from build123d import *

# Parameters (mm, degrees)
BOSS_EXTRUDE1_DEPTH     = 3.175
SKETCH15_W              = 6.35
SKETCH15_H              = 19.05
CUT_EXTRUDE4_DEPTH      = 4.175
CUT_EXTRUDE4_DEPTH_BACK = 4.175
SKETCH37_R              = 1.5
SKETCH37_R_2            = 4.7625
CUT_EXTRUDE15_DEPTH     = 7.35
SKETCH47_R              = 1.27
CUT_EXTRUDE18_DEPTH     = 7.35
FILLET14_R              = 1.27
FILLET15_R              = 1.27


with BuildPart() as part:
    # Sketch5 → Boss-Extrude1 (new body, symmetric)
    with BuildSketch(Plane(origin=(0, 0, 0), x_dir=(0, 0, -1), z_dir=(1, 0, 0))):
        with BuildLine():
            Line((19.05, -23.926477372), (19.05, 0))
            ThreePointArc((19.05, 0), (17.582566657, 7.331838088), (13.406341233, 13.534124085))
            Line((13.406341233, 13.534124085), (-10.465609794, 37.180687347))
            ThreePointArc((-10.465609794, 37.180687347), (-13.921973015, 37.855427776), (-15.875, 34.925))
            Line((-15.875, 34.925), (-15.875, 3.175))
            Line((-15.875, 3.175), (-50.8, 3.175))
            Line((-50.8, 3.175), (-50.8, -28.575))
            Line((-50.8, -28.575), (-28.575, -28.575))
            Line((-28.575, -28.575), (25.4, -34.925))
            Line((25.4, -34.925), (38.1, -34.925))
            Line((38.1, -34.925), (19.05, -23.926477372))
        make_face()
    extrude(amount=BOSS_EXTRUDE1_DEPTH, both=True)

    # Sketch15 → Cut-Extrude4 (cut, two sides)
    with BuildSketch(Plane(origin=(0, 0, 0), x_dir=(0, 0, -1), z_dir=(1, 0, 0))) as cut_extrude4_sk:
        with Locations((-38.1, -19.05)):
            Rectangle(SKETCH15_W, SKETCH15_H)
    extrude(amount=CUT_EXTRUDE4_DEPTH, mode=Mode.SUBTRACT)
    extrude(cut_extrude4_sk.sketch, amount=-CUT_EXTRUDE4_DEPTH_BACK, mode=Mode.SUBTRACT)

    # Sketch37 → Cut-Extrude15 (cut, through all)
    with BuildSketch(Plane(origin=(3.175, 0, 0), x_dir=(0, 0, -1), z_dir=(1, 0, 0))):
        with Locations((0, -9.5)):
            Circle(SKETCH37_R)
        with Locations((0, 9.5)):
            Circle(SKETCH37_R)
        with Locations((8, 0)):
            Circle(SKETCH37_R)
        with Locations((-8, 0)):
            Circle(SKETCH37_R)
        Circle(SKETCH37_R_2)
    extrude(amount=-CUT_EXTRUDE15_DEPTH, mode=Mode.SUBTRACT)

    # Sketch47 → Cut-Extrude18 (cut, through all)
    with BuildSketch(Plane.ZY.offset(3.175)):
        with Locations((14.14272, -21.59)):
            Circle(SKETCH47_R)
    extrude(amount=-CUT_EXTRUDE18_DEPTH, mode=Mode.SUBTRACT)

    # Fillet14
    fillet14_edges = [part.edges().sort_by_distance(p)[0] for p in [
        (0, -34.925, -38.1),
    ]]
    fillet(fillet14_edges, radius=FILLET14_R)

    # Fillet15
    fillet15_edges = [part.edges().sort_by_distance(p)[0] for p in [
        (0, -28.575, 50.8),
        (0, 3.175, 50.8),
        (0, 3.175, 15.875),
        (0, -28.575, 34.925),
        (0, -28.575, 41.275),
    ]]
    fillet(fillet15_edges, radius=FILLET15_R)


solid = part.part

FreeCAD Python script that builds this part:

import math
import FreeCAD as App
import Part
import Sketcher

V = App.Vector
Q = App.Units.Quantity


def edges_at(feature, points):
    """Names of the edges that pass closest to the given points."""
    edges = feature.Shape.Edges
    near = lambda p: min(range(len(edges)), key=lambda i: edges[i].distToShape(Part.Vertex(*p))[0])
    return sorted({f"Edge{near(p) + 1}" for p in points})

doc = App.newDocument("Part")
params = doc.addObject("Spreadsheet::Sheet", "Params")
for row, (alias, value) in enumerate([
    ("sketch1_radius", "0.75 in"),
    ("sketch1_height", "0.5 in"),
    ("sketch1_radius2", "0.125 in"),
    ("sketch1_width", "1.25 in"),
    ("pad1_length", "0.25 in"),
    ("sketch2_width", "0.75 in"),
    ("sketch2_height", "0.25 in"),
    ("sketch3_diameter", "0.375 in"),
    ("sketch4_diameter", "0.1 in"),
    ("fillet_radius", "0.05 in"),
    ("fillet2_radius", "0.05 in"),
], start=1):
    params.set(f"A{row}", alias)
    params.set(f"B{row}", "=" + value)
    params.setAlias(f"B{row}", alias)

body = doc.addObject("PartDesign::Body", "Body")

# Sketch on YZ plane
sketch1 = doc.addObject("Sketcher::SketchObject", "Sketch")
body.addObject(sketch1)
sketch1.AttachmentSupport = (doc.YZ_Plane, [""])
sketch1.MapMode = "FlatFace"
sketch1.addGeometry([
    Part.LineSegment(V(-23.926477, -19.05, 0), V(0, -19.05, 0)),  # 0
    Part.ArcOfCircle(Part.Circle(V(0, 0, 0), V(0, 0, 1), 19.05), math.radians(-90), math.radians(-44.728239)),  # 1
    Part.LineSegment(V(13.534124, -13.406341, 0), V(37.180687, 10.46561, 0)),  # 2
    Part.ArcOfCircle(Part.Circle(V(34.925, 12.7, 0), V(0, 0, 1), 3.175), math.radians(-44.728239), math.radians(90)),  # 3
    Part.LineSegment(V(34.925, 15.875, 0), V(3.175, 15.875, 0)),  # 4
    Part.LineSegment(V(3.175, 15.875, 0), V(3.175, 50.8, 0)),  # 5
    Part.LineSegment(V(3.175, 50.8, 0), V(-28.575, 50.8, 0)),  # 6
    Part.LineSegment(V(-28.575, 50.8, 0), V(-28.575, 28.575, 0)),  # 7
    Part.LineSegment(V(-28.575, 28.575, 0), V(-34.925, -25.4, 0)),  # 8
    Part.LineSegment(V(-34.925, -25.4, 0), V(-34.925, -38.1, 0)),  # 9
    Part.LineSegment(V(-34.925, -38.1, 0), V(-23.926477, -19.05, 0)),  # 10
], False)
sketch1.addConstraint([
    Sketcher.Constraint("Tangent", 0, 2, 1, 1),
    Sketcher.Constraint("Tangent", 1, 2, 2, 1),
    Sketcher.Constraint("Tangent", 2, 2, 3, 1),
    Sketcher.Constraint("Tangent", 3, 2, 4, 1),
    Sketcher.Constraint("Coincident", 4, 2, 5, 1),
    Sketcher.Constraint("Coincident", 5, 2, 6, 1),
    Sketcher.Constraint("Coincident", 6, 2, 7, 1),
    Sketcher.Constraint("Coincident", 7, 2, 8, 1),
    Sketcher.Constraint("Coincident", 8, 2, 9, 1),
    Sketcher.Constraint("Coincident", 9, 2, 10, 1),
    Sketcher.Constraint("Coincident", 10, 2, 0, 1),
    Sketcher.Constraint("Horizontal", 0),
    Sketcher.Constraint("Horizontal", 4),
    Sketcher.Constraint("Vertical", 5),
    Sketcher.Constraint("Horizontal", 6),
    Sketcher.Constraint("Vertical", 7),
    Sketcher.Constraint("Vertical", 9),
    Sketcher.Constraint("Coincident", 1, 3, -1, 1),
    Sketcher.Constraint("Equal", 4, 6),
    Sketcher.Constraint("Radius", 1, Q("0.75 in")),
    Sketcher.Constraint("DistanceY", 9, 2, 9, 1, Q("0.5 in")),
    Sketcher.Constraint("DistanceY", -1, 1, 5, 2, Q("2 in")),
    Sketcher.Constraint("DistanceY", 8, 2, -1, 1, Q("1 in")),
    Sketcher.Constraint("Angle", 10, Q("60 deg")),
    Sketcher.Constraint("Radius", 3, Q("0.125 in")),
    Sketcher.Constraint("DistanceX", 4, 2, 4, 1, Q("1.25 in")),
    Sketcher.Constraint("DistanceY", -1, 1, 3, 3, Q("0.5 in")),
    Sketcher.Constraint("DistanceY", 4, 2, 7, 2, Q("0.5 in")),
    Sketcher.Constraint("DistanceX", 8, 2, 4, 2, Q("1.5 in")),
    Sketcher.Constraint("DistanceX", -1, 1, 3, 3, Q("1.375 in")),
])
sketch1.setExpression("Constraints[19]", "Params.sketch1_radius")
sketch1.setExpression("Constraints[20]", "Params.sketch1_height")
sketch1.setExpression("Constraints[24]", "Params.sketch1_radius2")
sketch1.setExpression("Constraints[25]", "Params.sketch1_width")
pad1 = doc.addObject("PartDesign::Pad", "Pad")
body.addObject(pad1)
pad1.Profile = sketch1
pad1.setExpression("Length", "Params.pad1_length")
pad1.Midplane = True

# Sketch on YZ plane
sketch2 = doc.addObject("Sketcher::SketchObject", "Sketch001")
body.addObject(sketch2)
sketch2.AttachmentSupport = (doc.YZ_Plane, [""])
sketch2.MapMode = "FlatFace"
sketch2.addGeometry([
    Part.LineSegment(V(-9.525, 41.275, 0), V(-28.575, 41.275, 0)),
    Part.LineSegment(V(-28.575, 41.275, 0), V(-28.575, 34.925, 0)),
    Part.LineSegment(V(-28.575, 34.925, 0), V(-9.525, 34.925, 0)),
    Part.LineSegment(V(-9.525, 34.925, 0), V(-9.525, 41.275, 0)),
], False)
sketch2.addConstraint([
    Sketcher.Constraint("Coincident", 0, 2, 1, 1),
    Sketcher.Constraint("Coincident", 1, 2, 2, 1),
    Sketcher.Constraint("Coincident", 2, 2, 3, 1),
    Sketcher.Constraint("Coincident", 3, 2, 0, 1),
    Sketcher.Constraint("Horizontal", 0),
    Sketcher.Constraint("Vertical", 1),
    Sketcher.Constraint("Horizontal", 2),
    Sketcher.Constraint("Vertical", 3),
    Sketcher.Constraint("DistanceX", 0, 2, 0, 1, Q("0.75 in")),
    Sketcher.Constraint("DistanceY", 1, 2, 1, 1, Q("0.25 in")),
    Sketcher.Constraint("DistanceX", 0, 2, -1, 1, Q("1.125 in")),
    Sketcher.Constraint("DistanceY", -1, 1, 0, 2, Q("1.625 in")),
])
sketch2.setExpression("Constraints[8]", "Params.sketch2_width")
sketch2.setExpression("Constraints[9]", "Params.sketch2_height")
pocket1 = doc.addObject("PartDesign::Pocket", "Pocket")
body.addObject(pocket1)
pocket1.Profile = sketch2
pocket1.Type = "ThroughAll"
pocket1.Midplane = True

# Sketch on YZ plane
sketch3 = doc.addObject("Sketcher::SketchObject", "Sketch002")
body.addObject(sketch3)
sketch3.AttachmentSupport = (doc.YZ_Plane, [""])
sketch3.MapMode = "FlatFace"
sketch3.AttachmentOffset = App.Placement(V(0, 0, 0.125 * 25.4), App.Rotation())
sketch3.addGeometry([
    Part.Circle(V(-9.5, 0, 0), V(0, 0, 1), 1.5),  # 0
    Part.Circle(V(9.5, 0, 0), V(0, 0, 1), 1.5),  # 1
    Part.Circle(V(0, -8, 0), V(0, 0, 1), 1.5),  # 2
    Part.Circle(V(0, 8, 0), V(0, 0, 1), 1.5),  # 3
    Part.Circle(V(0, 0, 0), V(0, 0, 1), 4.7625),  # 4
], False)
sketch3.addConstraint([
    Sketcher.Constraint("Coincident", 4, 3, -1, 1),
    Sketcher.Constraint("Equal", 0, 1),
    Sketcher.Constraint("Equal", 1, 2),
    Sketcher.Constraint("Equal", 2, 3),
    Sketcher.Constraint("Symmetric", 0, 3, 1, 3, -1, 1),
    Sketcher.Constraint("Symmetric", 2, 3, 3, 3, -1, 1),
    Sketcher.Constraint("PointOnObject", 0, 3, -1),
    Sketcher.Constraint("PointOnObject", 2, 3, -2),
    Sketcher.Constraint("Diameter", 4, Q("0.375 in")),
    Sketcher.Constraint("Diameter", 0, Q("3 mm")),
    Sketcher.Constraint("DistanceX", 0, 3, -1, 1, Q("9.5 mm")),
    Sketcher.Constraint("DistanceY", 2, 3, -1, 1, Q("8 mm")),
])
sketch3.setExpression("Constraints[8]", "Params.sketch3_diameter")
pocket2 = doc.addObject("PartDesign::Pocket", "Pocket001")
body.addObject(pocket2)
pocket2.Profile = sketch3
pocket2.Type = "ThroughAll"

# Sketch on YZ plane
sketch4 = doc.addObject("Sketcher::SketchObject", "Sketch003")
body.addObject(sketch4)
sketch4.AttachmentSupport = (doc.YZ_Plane, [""])
sketch4.MapMode = "FlatFace"
sketch4.AttachmentOffset = App.Placement(V(0, 0, -0.125 * 25.4), App.Rotation())
sketch4.addGeometry(Part.Circle(V(-21.59, 14.14272, 0), V(0, 0, 1), 1.27), False)
sketch4.addConstraint([
    Sketcher.Constraint("Diameter", 0, Q("0.1 in")),
    Sketcher.Constraint("DistanceX", 0, 3, -1, 1, Q("0.85 in")),
    Sketcher.Constraint("DistanceY", -1, 1, 0, 3, Q("0.5568 in")),
])
sketch4.setExpression("Constraints[0]", "Params.sketch4_diameter")
pocket3 = doc.addObject("PartDesign::Pocket", "Pocket002")
body.addObject(pocket3)
pocket3.Profile = sketch4
pocket3.Type = "ThroughAll"
pocket3.Reversed = True
doc.recompute()

fillet = doc.addObject("PartDesign::Fillet", "Fillet")
body.addObject(fillet)
fillet.Base = (pocket3, edges_at(pocket3, [(0, -34.925, -38.1)]))
fillet.setExpression("Radius", "Params.fillet_radius")
doc.recompute()

fillet2 = doc.addObject("PartDesign::Fillet", "Fillet001")
body.addObject(fillet2)
fillet2.Base = (fillet, edges_at(fillet, [
    (0, -28.575, 50.8),
    (0, 3.175, 50.8),
    (0, 3.175, 15.875),
    (0, -28.575, 34.925),
    (0, -28.575, 41.275),
]))
fillet2.setExpression("Radius", "Params.fillet2_radius")

doc.recompute()
